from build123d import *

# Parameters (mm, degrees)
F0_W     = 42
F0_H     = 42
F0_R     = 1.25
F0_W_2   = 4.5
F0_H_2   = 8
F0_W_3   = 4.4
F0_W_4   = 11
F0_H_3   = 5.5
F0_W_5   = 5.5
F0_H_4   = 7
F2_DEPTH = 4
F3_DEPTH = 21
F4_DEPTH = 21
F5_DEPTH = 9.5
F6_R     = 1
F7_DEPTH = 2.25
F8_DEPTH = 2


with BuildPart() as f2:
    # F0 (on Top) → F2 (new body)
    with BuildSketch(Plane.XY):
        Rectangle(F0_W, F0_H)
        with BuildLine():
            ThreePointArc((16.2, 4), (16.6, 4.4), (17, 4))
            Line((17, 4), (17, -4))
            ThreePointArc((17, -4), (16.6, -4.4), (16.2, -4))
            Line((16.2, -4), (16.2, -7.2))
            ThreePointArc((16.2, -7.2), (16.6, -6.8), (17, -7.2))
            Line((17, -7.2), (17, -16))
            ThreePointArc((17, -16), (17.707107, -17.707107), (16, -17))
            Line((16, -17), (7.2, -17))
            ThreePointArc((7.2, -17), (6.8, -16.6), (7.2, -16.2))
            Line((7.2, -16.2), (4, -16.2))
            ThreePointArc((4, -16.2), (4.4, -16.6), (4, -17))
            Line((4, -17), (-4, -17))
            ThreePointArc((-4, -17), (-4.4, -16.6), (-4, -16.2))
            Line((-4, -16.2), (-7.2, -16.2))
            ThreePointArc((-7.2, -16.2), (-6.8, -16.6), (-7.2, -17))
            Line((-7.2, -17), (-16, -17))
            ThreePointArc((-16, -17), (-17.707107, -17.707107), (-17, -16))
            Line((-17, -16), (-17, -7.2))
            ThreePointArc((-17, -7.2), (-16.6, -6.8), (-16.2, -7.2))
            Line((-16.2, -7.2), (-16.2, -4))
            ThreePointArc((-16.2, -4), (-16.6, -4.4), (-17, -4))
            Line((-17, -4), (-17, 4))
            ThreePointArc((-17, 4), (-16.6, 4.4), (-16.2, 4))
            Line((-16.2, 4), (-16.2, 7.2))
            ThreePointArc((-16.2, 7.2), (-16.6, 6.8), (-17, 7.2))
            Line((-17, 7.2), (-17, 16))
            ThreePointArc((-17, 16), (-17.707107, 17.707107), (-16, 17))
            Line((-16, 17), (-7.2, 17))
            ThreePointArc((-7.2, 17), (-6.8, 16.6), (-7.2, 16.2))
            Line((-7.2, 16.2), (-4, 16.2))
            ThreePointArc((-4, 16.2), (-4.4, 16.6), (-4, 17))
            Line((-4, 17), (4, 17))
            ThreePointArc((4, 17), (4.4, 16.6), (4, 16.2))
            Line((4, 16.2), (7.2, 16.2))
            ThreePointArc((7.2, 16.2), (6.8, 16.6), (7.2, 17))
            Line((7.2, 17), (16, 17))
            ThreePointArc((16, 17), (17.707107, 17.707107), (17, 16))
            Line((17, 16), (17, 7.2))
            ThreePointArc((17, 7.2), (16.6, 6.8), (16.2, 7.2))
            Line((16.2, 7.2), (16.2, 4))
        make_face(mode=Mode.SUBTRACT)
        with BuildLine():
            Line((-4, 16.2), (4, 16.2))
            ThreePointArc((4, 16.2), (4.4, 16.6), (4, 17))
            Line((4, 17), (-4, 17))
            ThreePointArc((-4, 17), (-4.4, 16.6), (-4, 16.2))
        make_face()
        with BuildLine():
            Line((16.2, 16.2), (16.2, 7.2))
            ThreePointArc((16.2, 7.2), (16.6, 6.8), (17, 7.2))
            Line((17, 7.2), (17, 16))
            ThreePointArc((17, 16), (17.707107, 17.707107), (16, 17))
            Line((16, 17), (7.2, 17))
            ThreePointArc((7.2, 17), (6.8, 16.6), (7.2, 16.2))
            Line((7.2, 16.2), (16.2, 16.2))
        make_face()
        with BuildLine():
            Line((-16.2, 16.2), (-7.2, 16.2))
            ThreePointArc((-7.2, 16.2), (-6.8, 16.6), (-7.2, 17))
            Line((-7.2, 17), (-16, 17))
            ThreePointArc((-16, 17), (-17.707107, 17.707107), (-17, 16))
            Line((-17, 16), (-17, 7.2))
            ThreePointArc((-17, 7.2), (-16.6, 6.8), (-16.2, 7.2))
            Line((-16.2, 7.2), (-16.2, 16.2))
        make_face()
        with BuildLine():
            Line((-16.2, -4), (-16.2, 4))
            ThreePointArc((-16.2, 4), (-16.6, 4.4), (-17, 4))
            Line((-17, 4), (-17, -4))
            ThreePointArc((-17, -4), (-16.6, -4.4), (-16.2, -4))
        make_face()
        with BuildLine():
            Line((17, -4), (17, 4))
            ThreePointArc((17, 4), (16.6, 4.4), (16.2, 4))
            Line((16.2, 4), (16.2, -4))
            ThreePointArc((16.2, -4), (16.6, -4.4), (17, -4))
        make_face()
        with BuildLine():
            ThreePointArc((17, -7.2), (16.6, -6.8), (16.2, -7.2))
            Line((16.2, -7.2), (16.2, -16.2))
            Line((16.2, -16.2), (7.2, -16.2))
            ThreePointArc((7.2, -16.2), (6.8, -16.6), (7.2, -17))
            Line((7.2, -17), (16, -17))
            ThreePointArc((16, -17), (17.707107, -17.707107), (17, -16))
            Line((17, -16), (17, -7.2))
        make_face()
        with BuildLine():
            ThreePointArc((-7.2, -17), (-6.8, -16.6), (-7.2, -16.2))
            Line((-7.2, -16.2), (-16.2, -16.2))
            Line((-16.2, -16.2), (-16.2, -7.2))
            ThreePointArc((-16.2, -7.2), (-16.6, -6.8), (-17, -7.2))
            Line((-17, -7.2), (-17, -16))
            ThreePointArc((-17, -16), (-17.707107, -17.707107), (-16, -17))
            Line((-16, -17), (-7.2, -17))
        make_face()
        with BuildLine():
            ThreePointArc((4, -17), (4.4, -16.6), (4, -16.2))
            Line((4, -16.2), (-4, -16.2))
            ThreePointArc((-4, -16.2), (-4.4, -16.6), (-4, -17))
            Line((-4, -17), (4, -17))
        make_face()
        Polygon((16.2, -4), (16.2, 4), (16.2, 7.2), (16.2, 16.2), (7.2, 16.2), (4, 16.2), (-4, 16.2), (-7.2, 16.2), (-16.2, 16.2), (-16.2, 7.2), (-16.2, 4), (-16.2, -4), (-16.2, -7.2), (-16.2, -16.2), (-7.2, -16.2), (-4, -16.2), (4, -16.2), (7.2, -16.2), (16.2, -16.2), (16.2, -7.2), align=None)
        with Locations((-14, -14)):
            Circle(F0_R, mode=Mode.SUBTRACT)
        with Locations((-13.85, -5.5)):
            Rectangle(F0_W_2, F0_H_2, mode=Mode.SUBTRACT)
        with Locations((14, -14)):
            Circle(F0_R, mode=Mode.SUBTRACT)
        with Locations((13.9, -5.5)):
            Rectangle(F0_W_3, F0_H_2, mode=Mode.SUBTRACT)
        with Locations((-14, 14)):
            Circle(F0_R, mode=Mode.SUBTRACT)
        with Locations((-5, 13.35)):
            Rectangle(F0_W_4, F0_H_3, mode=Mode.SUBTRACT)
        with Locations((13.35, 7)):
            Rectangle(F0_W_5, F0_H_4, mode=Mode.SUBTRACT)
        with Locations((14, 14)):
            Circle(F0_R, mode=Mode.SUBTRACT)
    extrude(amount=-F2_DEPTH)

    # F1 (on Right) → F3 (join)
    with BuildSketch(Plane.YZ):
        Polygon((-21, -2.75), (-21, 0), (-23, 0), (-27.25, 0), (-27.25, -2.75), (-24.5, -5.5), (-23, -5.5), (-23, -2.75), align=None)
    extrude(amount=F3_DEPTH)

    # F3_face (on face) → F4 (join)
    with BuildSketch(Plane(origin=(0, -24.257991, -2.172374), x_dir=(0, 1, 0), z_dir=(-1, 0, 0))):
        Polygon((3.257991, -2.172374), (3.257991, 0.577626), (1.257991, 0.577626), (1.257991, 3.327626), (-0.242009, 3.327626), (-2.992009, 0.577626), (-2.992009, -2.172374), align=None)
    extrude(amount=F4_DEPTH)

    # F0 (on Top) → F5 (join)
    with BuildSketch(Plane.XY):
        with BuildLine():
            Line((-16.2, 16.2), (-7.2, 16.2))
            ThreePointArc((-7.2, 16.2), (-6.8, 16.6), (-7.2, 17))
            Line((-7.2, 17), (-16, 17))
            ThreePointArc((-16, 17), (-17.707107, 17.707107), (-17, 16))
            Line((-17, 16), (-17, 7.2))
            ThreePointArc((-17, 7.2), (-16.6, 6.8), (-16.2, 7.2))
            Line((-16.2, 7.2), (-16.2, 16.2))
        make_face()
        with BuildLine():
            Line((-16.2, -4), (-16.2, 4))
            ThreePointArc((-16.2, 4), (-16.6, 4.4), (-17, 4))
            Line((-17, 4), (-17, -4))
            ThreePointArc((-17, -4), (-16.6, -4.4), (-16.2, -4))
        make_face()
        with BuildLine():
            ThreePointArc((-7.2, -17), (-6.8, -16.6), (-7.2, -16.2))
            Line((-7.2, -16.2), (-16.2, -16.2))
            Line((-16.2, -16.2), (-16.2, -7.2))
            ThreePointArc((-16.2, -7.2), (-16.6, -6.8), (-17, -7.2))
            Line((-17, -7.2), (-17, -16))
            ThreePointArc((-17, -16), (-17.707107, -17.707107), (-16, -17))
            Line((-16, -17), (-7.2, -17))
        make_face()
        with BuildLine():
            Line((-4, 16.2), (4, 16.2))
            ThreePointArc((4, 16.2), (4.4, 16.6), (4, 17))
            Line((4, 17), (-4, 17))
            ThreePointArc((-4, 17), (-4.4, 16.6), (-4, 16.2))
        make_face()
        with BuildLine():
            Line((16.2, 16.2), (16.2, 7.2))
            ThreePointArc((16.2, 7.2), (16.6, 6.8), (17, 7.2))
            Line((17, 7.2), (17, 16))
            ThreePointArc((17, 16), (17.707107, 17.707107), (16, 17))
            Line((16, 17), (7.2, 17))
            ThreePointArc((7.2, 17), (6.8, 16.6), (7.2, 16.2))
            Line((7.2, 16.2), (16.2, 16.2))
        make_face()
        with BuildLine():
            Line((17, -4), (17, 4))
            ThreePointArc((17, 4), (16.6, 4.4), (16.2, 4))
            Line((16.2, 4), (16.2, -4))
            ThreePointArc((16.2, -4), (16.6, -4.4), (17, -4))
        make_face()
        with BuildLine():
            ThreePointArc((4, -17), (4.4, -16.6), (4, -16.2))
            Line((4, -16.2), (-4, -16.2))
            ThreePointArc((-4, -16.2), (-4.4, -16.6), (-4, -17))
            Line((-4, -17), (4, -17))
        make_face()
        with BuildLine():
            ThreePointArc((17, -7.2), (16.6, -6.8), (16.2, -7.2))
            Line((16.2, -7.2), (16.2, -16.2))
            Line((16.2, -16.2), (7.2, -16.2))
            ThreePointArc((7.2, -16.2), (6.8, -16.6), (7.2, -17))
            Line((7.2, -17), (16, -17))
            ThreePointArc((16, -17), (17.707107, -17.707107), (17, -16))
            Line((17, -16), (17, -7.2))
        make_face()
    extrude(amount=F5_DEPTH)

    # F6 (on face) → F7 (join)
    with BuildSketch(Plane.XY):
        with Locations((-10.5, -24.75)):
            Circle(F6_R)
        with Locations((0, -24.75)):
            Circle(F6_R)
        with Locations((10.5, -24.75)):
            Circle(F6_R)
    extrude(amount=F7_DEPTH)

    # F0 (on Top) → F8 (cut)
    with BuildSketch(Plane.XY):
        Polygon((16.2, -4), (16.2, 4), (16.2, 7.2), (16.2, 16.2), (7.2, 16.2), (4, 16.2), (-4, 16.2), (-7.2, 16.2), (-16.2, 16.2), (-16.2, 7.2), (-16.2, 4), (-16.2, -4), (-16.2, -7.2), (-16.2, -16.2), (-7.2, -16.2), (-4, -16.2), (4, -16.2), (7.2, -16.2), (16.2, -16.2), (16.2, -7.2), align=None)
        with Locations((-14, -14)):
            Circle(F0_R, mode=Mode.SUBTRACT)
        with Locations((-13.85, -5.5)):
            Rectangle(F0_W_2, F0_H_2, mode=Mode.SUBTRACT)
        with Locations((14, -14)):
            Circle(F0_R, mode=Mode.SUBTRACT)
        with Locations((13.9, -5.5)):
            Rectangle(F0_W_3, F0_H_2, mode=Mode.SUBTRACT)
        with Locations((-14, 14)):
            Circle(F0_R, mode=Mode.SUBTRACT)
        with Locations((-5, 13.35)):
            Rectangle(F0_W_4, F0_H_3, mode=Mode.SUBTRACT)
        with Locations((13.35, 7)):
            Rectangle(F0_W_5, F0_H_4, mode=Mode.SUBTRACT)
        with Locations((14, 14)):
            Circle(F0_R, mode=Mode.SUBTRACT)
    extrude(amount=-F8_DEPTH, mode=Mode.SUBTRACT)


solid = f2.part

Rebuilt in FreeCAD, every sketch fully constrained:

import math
import FreeCAD as App
import Part
import Sketcher

V = App.Vector
Q = App.Units.Quantity


def add_polygon(sketch, points):
    """Adds a closed chain of lines whose ends are joined by coincident constraints."""
    first, n = sketch.GeometryCount, len(points)
    for a, b in zip(points, points[1:] + points[:1]):
        sketch.addGeometry(Part.LineSegment(App.Vector(*a, 0), App.Vector(*b, 0)), False)
    for i in range(n):
        sketch.addConstraint(Sketcher.Constraint("Coincident", first + i, 2, first + (i + 1) % n, 1))

doc = App.newDocument("Part")
params = doc.addObject("Spreadsheet::Sheet", "Params")
for row, (alias, value) in enumerate([
    ("sketch1_diameter", "2.5 mm"),
    ("sketch1_width", "42 mm"),
    ("sketch1_width2", "11 mm"),
    ("sketch1_height", "8 mm"),
    ("sketch1_height2", "7 mm"),
    ("pad1_length", "4 mm"),
    ("sketch2_width", "2 mm"),
    ("sketch2_width2", "1.5 mm"),
    ("sketch2_width3", "6.25 mm"),
    ("pad2_length", "21 mm"),
    ("sketch3_width", "2 mm"),
    ("sketch3_width2", "1.5 mm"),
    ("sketch3_width3", "6.25 mm"),
    ("pad3_length", "21 mm"),
    ("sketch4_radius", "1 mm"),
    ("sketch4_radius2", "0.4 mm"),
    ("sketch4_width", "9 mm"),
    ("sketch4_width2", "8 mm"),
    ("pad4_length", "9.5 mm"),
    ("sketch5_diameter", "2 mm"),
    ("pad5_length", "2.25 mm"),
    ("sketch6_diameter", "2.5 mm"),
    ("sketch6_width", "11 mm"),
    ("sketch6_height", "8 mm"),
    ("sketch6_height2", "7 mm"),
    ("sketch6_width2", "32.4 mm"),
    ("pocket1_length", "2 mm"),
], start=1):
    params.set(f"A{row}", alias)
    params.set(f"B{row}", "=" + value)
    params.setAlias(f"B{row}", alias)

body = doc.addObject("PartDesign::Body", "Body")

sketch1 = doc.addObject("Sketcher::SketchObject", "Sketch")
body.addObject(sketch1)
sketch1.AttachmentSupport = (doc.XY_Plane, [""])
sketch1.MapMode = "FlatFace"
add_polygon(sketch1, [(-21, 21), (-21, -21), (21, -21), (21, 21)])
sketch1.addGeometry(Part.Circle(V(-14, -14, 0), V(0, 0, 1), 1.2), False)
add_polygon(sketch1, [(-11.6, -9.5), (-16.1, -9.5), (-16.1, -1.5), (-11.6, -1.5)])
sketch1.addGeometry(Part.Circle(V(14, -14, 0), V(0, 0, 1), 1.2), False)
add_polygon(sketch1, [(16.1, -9.5), (11.7, -9.5), (11.7, -1.5), (16.1, -1.5)])
sketch1.addGeometry(Part.Circle(V(-14, 14, 0), V(0, 0, 1), 1.2), False)
add_polygon(sketch1, [(0.5, 10.6), (-10.5, 10.6), (-10.5, 16.1), (0.5, 16.1)])
add_polygon(sketch1, [(16.1, 3.5), (10.6, 3.5), (10.6, 10.5), (16.1, 10.5)])
sketch1.addGeometry(Part.Circle(V(14, 14, 0), V(0, 0, 1), 1.2), False)
sketch1.addConstraint([
    Sketcher.Constraint("Vertical", 0),
    Sketcher.Constraint("Horizontal", 1),
    Sketcher.Constraint("Vertical", 2),
    Sketcher.Constraint("Horizontal", 3),
    Sketcher.Constraint("Horizontal", 5),
    Sketcher.Constraint("Vertical", 6),
    Sketcher.Constraint("Horizontal", 7),
    Sketcher.Constraint("Vertical", 8),
    Sketcher.Constraint("Horizontal", 10),
    Sketcher.Constraint("Vertical", 11),
    Sketcher.Constraint("Horizontal", 12),
    Sketcher.Constraint("Vertical", 13),
    Sketcher.Constraint("Horizontal", 15),
    Sketcher.Constraint("Vertical", 16),
    Sketcher.Constraint("Horizontal", 17),
    Sketcher.Constraint("Vertical", 18),
    Sketcher.Constraint("Horizontal", 19),
    Sketcher.Constraint("Vertical", 20),
    Sketcher.Constraint("Horizontal", 21),
    Sketcher.Constraint("Vertical", 22),
    Sketcher.Constraint("Equal", 4, 9),
    Sketcher.Constraint("Equal", 9, 14),
    Sketcher.Constraint("Equal", 14, 23),
    Sketcher.Constraint("Symmetric", 9, 3, 14, 3, -1, 1),
    Sketcher.Constraint("Symmetric", 4, 3, 23, 3, -1, 1),
    Sketcher.Constraint("Symmetric", 0, 2, 2, 2, -1, 1),
    Sketcher.Constraint("Symmetric", 4, 3, 9, 3, -2),
    Sketcher.Constraint("Symmetric", 6, 2, 12, 2, -2),
    Sketcher.Constraint("Horizontal", 8, 2, 10, 2),
    Sketcher.Constraint("Vertical", 13, 2, 21, 2),
    Sketcher.Constraint("Equal", 3, 0),
    Sketcher.Constraint("Equal", 21, 16),
    Sketcher.Constraint("Diameter", 4, 2.5),
    Sketcher.Constraint("DistanceX", 1, 1, 1, 2, 42.0),
    Sketcher.Constraint("DistanceX", 15, 2, 15, 1, 11.0),
    Sketcher.Constraint("DistanceY", 6, 1, 6, 2, 8.0),
    Sketcher.Constraint("DistanceY", 20, 1, 20, 2, 7.0),
    Sketcher.Constraint("DistanceX", 5, 2, 5, 1, 4.5),
    Sketcher.Constraint("DistanceX", 10, 2, 10, 1, 4.4),
    Sketcher.Constraint("DistanceX", 19, 2, 19, 1, 5.5),
    Sketcher.Constraint("DistanceX", 4, 3, -1, 1, 14.0),
    Sketcher.Constraint("DistanceY", 4, 3, -1, 1, 14.0),
    Sketcher.Constraint("DistanceY", 11, 2, 19, 2, 5.0),
    Sketcher.Constraint("DistanceX", 5, 2, -1, 1, 16.1),
    Sketcher.Constraint("DistanceY", 5, 2, -1, 1, 9.5),
    Sketcher.Constraint("DistanceX", 15, 2, -1, 1, 10.5),
    Sketcher.Constraint("DistanceY", -1, 1, 15, 2, 10.6),
])
sketch1.setExpression("Constraints[52]", "Params.sketch1_diameter")
sketch1.setExpression("Constraints[53]", "Params.sketch1_width")
sketch1.setExpression("Constraints[54]", "Params.sketch1_width2")
sketch1.setExpression("Constraints[55]", "Params.sketch1_height")
sketch1.setExpression("Constraints[56]", "Params.sketch1_height2")
pad1 = doc.addObject("PartDesign::Pad", "Pad")
body.addObject(pad1)
pad1.Profile = sketch1
pad1.setExpression("Length", "Params.pad1_length")
pad1.Reversed = True

sketch2 = doc.addObject("Sketcher::SketchObject", "Sketch001")
body.addObject(sketch2)
sketch2.AttachmentSupport = (doc.YZ_Plane, [""])
sketch2.MapMode = "FlatFace"
add_polygon(sketch2, [(-21, -2.8), (-21, 0), (-27.2, 0), (-27.2, -2.8), (-24.5, -5.5), (-23, -5.5), (-23, -2.8)])
sketch2.addConstraint([
    Sketcher.Constraint("Vertical", 0),
    Sketcher.Constraint("Horizontal", 1),
    Sketcher.Constraint("Vertical", 2),
    Sketcher.Constraint("Horizontal", 4),
    Sketcher.Constraint("Vertical", 5),
    Sketcher.Constraint("Horizontal", 6),
    Sketcher.Constraint("PointOnObject", 0, 2, -1),
    Sketcher.Constraint("Horizontal", 2, 2, 5, 2),
    Sketcher.Constraint("Equal", 2, 5),
    Sketcher.Constraint("DistanceX", 6, 1, 6, 2, 2.0),
    Sketcher.Constraint("Angle", 3, Q("-45 deg")),
    Sketcher.Constraint("DistanceX", 4, 1, 4, 2, 1.5),
    Sketcher.Constraint("DistanceX", 0, 2, -1, 1, 21.0),
    Sketcher.Constraint("DistanceX", 1, 2, 1, 1, 6.25),
])
sketch2.setExpression("Constraints[16]", "Params.sketch2_width")
sketch2.setExpression("Constraints[18]", "Params.sketch2_width2")
sketch2.setExpression("Constraints[20]", "Params.sketch2_width3")
pad2 = doc.addObject("PartDesign::Pad", "Pad001")
body.addObject(pad2)
pad2.Profile = sketch2
pad2.setExpression("Length", "Params.pad2_length")

sketch3 = doc.addObject("Sketcher::SketchObject", "Sketch002")
body.addObject(sketch3)
sketch3.AttachmentSupport = (doc.YZ_Plane, [""])
sketch3.MapMode = "FlatFace"
add_polygon(sketch3, [(-21, 0), (-21, -2.8), (-23, -2.8), (-23, -5.5), (-24.5, -5.5), (-27.2, -2.8), (-27.2, 0)])
sketch3.addConstraint([
    Sketcher.Constraint("Vertical", 0),
    Sketcher.Constraint("Horizontal", 1),
    Sketcher.Constraint("Vertical", 2),
    Sketcher.Constraint("Horizontal", 3),
    Sketcher.Constraint("Vertical", 5),
    Sketcher.Constraint("Horizontal", 6),
    Sketcher.Constraint("PointOnObject", 5, 2, -1),
    Sketcher.Constraint("Horizontal", 1, 2, 4, 2),
    Sketcher.Constraint("Equal", 0, 2),
    Sketcher.Constraint("DistanceX", 1, 2, 1, 1, 2.0),
    Sketcher.Constraint("Angle", 4, Q("135 deg")),
    Sketcher.Constraint("DistanceX", 3, 2, 3, 1, 1.5),
    Sketcher.Constraint("DistanceX", 0, 2, -1, 1, 21.0),
    Sketcher.Constraint("DistanceX", 6, 1, 6, 2, 6.25),
])
sketch3.setExpression("Constraints[16]", "Params.sketch3_width")
sketch3.setExpression("Constraints[18]", "Params.sketch3_width2")
sketch3.setExpression("Constraints[20]", "Params.sketch3_width3")
pad3 = doc.addObject("PartDesign::Pad", "Pad002")
body.addObject(pad3)
pad3.Profile = sketch3
pad3.setExpression("Length", "Params.pad3_length")
pad3.Reversed = True

sketch4 = doc.addObject("Sketcher::SketchObject", "Sketch003")
body.addObject(sketch4)
sketch4.AttachmentSupport = (doc.XY_Plane, [""])
sketch4.MapMode = "FlatFace"
sketch4.addGeometry([
    Part.LineSegment(V(-16.2, 16.2, 0), V(-7.2, 16.2, 0)),
    Part.ArcOfCircle(Part.Circle(V(-7.2, 16.6, 0), V(0, 0, 1), 0.4), math.radians(-90), math.radians(90)),
    Part.LineSegment(V(-7.2, 17, 0), V(-16, 17, 0)),
    Part.ArcOfCircle(Part.Circle(V(-17, 17, 0), V(0, 0, 1), 1), math.radians(0), math.radians(270)),
    Part.LineSegment(V(-17, 16, 0), V(-17, 7.2, 0)),
    Part.ArcOfCircle(Part.Circle(V(-16.6, 7.2, 0), V(0, 0, 1), 0.4), math.radians(180), math.radians(360)),
    Part.LineSegment(V(-16.2, 7.2, 0), V(-16.2, 16.2, 0)),
    Part.LineSegment(V(-16.2, -4, 0), V(-16.2, 4, 0)),
    Part.ArcOfCircle(Part.Circle(V(-16.6, 4, 0), V(0, 0, 1), 0.4), math.radians(0), math.radians(180)),
    Part.LineSegment(V(-17, 4, 0), V(-17, -4, 0)),
    Part.ArcOfCircle(Part.Circle(V(-16.6, -4, 0), V(0, 0, 1), 0.4), math.radians(180), math.radians(360)),
    Part.ArcOfCircle(Part.Circle(V(-7.2, -16.6, 0), V(0, 0, 1), 0.4), math.radians(-90), math.radians(90)),
    Part.LineSegment(V(-7.2, -16.2, 0), V(-16.2, -16.2, 0)),
    Part.LineSegment(V(-16.2, -16.2, 0), V(-16.2, -7.2, 0)),
    Part.ArcOfCircle(Part.Circle(V(-16.6, -7.2, 0), V(0, 0, 1), 0.4), math.radians(0), math.radians(180)),
    Part.LineSegment(V(-17, -7.2, 0), V(-17, -16, 0)),
    Part.ArcOfCircle(Part.Circle(V(-17, -17, 0), V(0, 0, 1), 1), math.radians(90), math.radians(360)),
    Part.LineSegment(V(-16, -17, 0), V(-7.2, -17, 0)),
    Part.LineSegment(V(-4, 16.2, 0), V(4, 16.2, 0)),
    Part.ArcOfCircle(Part.Circle(V(4, 16.6, 0), V(0, 0, 1), 0.4), math.radians(-90), math.radians(90)),
    Part.LineSegment(V(4, 17, 0), V(-4, 17, 0)),
    Part.ArcOfCircle(Part.Circle(V(-4, 16.6, 0), V(0, 0, 1), 0.4), math.radians(90), math.radians(270)),
    Part.LineSegment(V(16.2, 16.2, 0), V(16.2, 7.2, 0)),
    Part.ArcOfCircle(Part.Circle(V(16.6, 7.2, 0), V(0, 0, 1), 0.4), math.radians(180), math.radians(360)),
    Part.LineSegment(V(17, 7.2, 0), V(17, 16, 0)),
    Part.ArcOfCircle(Part.Circle(V(17, 17, 0), V(0, 0, 1), 1), math.radians(-90), math.radians(180)),
    Part.LineSegment(V(16, 17, 0), V(7.2, 17, 0)),
    Part.ArcOfCircle(Part.Circle(V(7.2, 16.6, 0), V(0, 0, 1), 0.4), math.radians(90), math.radians(270)),
    Part.LineSegment(V(7.2, 16.2, 0), V(16.2, 16.2, 0)),
    Part.LineSegment(V(17, -4, 0), V(17, 4, 0)),
    Part.ArcOfCircle(Part.Circle(V(16.6, 4, 0), V(0, 0, 1), 0.4), math.radians(0), math.radians(180)),
    Part.LineSegment(V(16.2, 4, 0), V(16.2, -4, 0)),
    Part.ArcOfCircle(Part.Circle(V(16.6, -4, 0), V(0, 0, 1), 0.4), math.radians(180), math.radians(360)),
    Part.ArcOfCircle(Part.Circle(V(4, -16.6, 0), V(0, 0, 1), 0.4), math.radians(-90), math.radians(90)),
    Part.LineSegment(V(4, -16.2, 0), V(-4, -16.2, 0)),
    Part.ArcOfCircle(Part.Circle(V(-4, -16.6, 0), V(0, 0, 1), 0.4), math.radians(90), math.radians(270)),
    Part.LineSegment(V(-4, -17, 0), V(4, -17, 0)),
    Part.ArcOfCircle(Part.Circle(V(16.6, -7.2, 0), V(0, 0, 1), 0.4), math.radians(0), math.radians(180)),
    Part.LineSegment(V(16.2, -7.2, 0), V(16.2, -16.2, 0)),
    Part.LineSegment(V(16.2, -16.2, 0), V(7.2, -16.2, 0)),
    Part.ArcOfCircle(Part.Circle(V(7.2, -16.6, 0), V(0, 0, 1), 0.4), math.radians(90), math.radians(270)),
    Part.LineSegment(V(7.2, -17, 0), V(16, -17, 0)),
    Part.ArcOfCircle(Part.Circle(V(17, -17, 0), V(0, 0, 1), 1), math.radians(180), math.radians(450)),
    Part.LineSegment(V(17, -16, 0), V(17, -7.2, 0)),
], False)
sketch4.addConstraint([
    Sketcher.Constraint("Tangent", 0, 2, 1, 1),
    Sketcher.Constraint("Tangent", 1, 2, 2, 1),
    Sketcher.Constraint("Coincident", 2, 2, 3, 1),
    Sketcher.Constraint("Coincident", 3, 2, 4, 1),
    Sketcher.Constraint("Tangent", 4, 2, 5, 1),
    Sketcher.Constraint("Tangent", 5, 2, 6, 1),
    Sketcher.Constraint("Coincident", 6, 2, 0, 1),
    Sketcher.Constraint("Tangent", 7, 2, 8, 1),
    Sketcher.Constraint("Tangent", 8, 2, 9, 1),
    Sketcher.Constraint("Tangent", 9, 2, 10, 1),
    Sketcher.Constraint("Tangent", 10, 2, 7, 1),
    Sketcher.Constraint("Tangent", 11, 2, 12, 1),
    Sketcher.Constraint("Coincident", 12, 2, 13, 1),
    Sketcher.Constraint("Tangent", 13, 2, 14, 1),
    Sketcher.Constraint("Tangent", 14, 2, 15, 1),
    Sketcher.Constraint("Coincident", 15, 2, 16, 1),
    Sketcher.Constraint("Coincident", 16, 2, 17, 1),
    Sketcher.Constraint("Tangent", 17, 2, 11, 1),
    Sketcher.Constraint("Tangent", 18, 2, 19, 1),
    Sketcher.Constraint("Tangent", 19, 2, 20, 1),
    Sketcher.Constraint("Tangent", 20, 2, 21, 1),
    Sketcher.Constraint("Tangent", 21, 2, 18, 1),
    Sketcher.Constraint("Tangent", 22, 2, 23, 1),
    Sketcher.Constraint("Tangent", 23, 2, 24, 1),
    Sketcher.Constraint("Coincident", 24, 2, 25, 1),
    Sketcher.Constraint("Coincident", 25, 2, 26, 1),
    Sketcher.Constraint("Tangent", 26, 2, 27, 1),
    Sketcher.Constraint("Tangent", 27, 2, 28, 1),
    Sketcher.Constraint("Coincident", 28, 2, 22, 1),
    Sketcher.Constraint("Tangent", 29, 2, 30, 1),
    Sketcher.Constraint("Tangent", 30, 2, 31, 1),
    Sketcher.Constraint("Tangent", 31, 2, 32, 1),
    Sketcher.Constraint("Tangent", 32, 2, 29, 1),
    Sketcher.Constraint("Tangent", 33, 2, 34, 1),
    Sketcher.Constraint("Tangent", 34, 2, 35, 1),
    Sketcher.Constraint("Tangent", 35, 2, 36, 1),
    Sketcher.Constraint("Tangent", 36, 2, 33, 1),
    Sketcher.Constraint("Tangent", 37, 2, 38, 1),
    Sketcher.Constraint("Coincident", 38, 2, 39, 1),
    Sketcher.Constraint("Tangent", 39, 2, 40, 1),
    Sketcher.Constraint("Tangent", 40, 2, 41, 1),
    Sketcher.Constraint("Coincident", 41, 2, 42, 1),
    Sketcher.Constraint("Coincident", 42, 2, 43, 1),
    Sketcher.Constraint("Tangent", 43, 2, 37, 1),
    Sketcher.Constraint("Horizontal", 0),
    Sketcher.Constraint("Horizontal", 2),
    Sketcher.Constraint("Vertical", 4),
    Sketcher.Constraint("Vertical", 6),
    Sketcher.Constraint("Vertical", 7),
    Sketcher.Constraint("Vertical", 9),
    Sketcher.Constraint("Horizontal", 12),
    Sketcher.Constraint("Vertical", 13),
    Sketcher.Constraint("Vertical", 15),
    Sketcher.Constraint("Horizontal", 17),
    Sketcher.Constraint("Horizontal", 18),
    Sketcher.Constraint("Horizontal", 20),
    Sketcher.Constraint("Vertical", 22),
    Sketcher.Constraint("Vertical", 24),
    Sketcher.Constraint("Horizontal", 26),
    Sketcher.Constraint("Horizontal", 28),
    Sketcher.Constraint("Vertical", 29),
    Sketcher.Constraint("Vertical", 31),
    Sketcher.Constraint("Horizontal", 34),
    Sketcher.Constraint("Horizontal", 36),
    Sketcher.Constraint("Vertical", 38),
    Sketcher.Constraint("Horizontal", 39),
    Sketcher.Constraint("Horizontal", 41),
    Sketcher.Constraint("Vertical", 43),
    Sketcher.Constraint("Equal", 1, 5),
    Sketcher.Constraint("Equal", 5, 8),
    Sketcher.Constraint("Equal", 10, 11),
    Sketcher.Constraint("Equal", 11, 14),
    Sketcher.Constraint("Equal", 3, 16),
    Sketcher.Constraint("Equal", 14, 19),
    Sketcher.Constraint("Equal", 21, 23),
    Sketcher.Constraint("Equal", 16, 25),
    Sketcher.Constraint("Equal", 23, 27),
    Sketcher.Constraint("Equal", 27, 30),
    Sketcher.Constraint("Equal", 32, 33),
    Sketcher.Constraint("Equal", 35, 37),
    Sketcher.Constraint("Equal", 37, 40),
    Sketcher.Constraint("Equal", 25, 42),
    Sketcher.Constraint("Symmetric", 14, 3, 23, 3, -1, 1),
    Sketcher.Constraint("Symmetric", 16, 3, 25, 3, -1, 1),
    Sketcher.Constraint("Symmetric", 11, 3, 27, 3, -1, 1),
    Sketcher.Constraint("Symmetric", 10, 3, 30, 3, -1, 1),
    Sketcher.Constraint("Symmetric", 21, 3, 33, 3, -1, 1),
    Sketcher.Constraint("Symmetric", 5, 3, 37, 3, -1, 1),
    Sketcher.Constraint("Symmetric", 1, 3, 40, 3, -1, 1),
    Sketcher.Constraint("Symmetric", 3, 3, 42, 3, -1, 1),
    Sketcher.Constraint("Symmetric", 5, 3, 23, 3, -2),
    Sketcher.Constraint("Symmetric", 3, 3, 25, 3, -2),
    Sketcher.Constraint("Symmetric", 1, 3, 27, 3, -2),
    Sketcher.Constraint("Horizontal", 1, 3, 19, 3),
    Sketcher.Constraint("Horizontal", 8, 3, 30, 3),
    Sketcher.Constraint("Horizontal", 10, 3, 32, 3),
    Sketcher.Constraint("Horizontal", 25, 3, 1, 2),
    Sketcher.Constraint("Vertical", 5, 3, 8, 3),
    Sketcher.Constraint("Vertical", 19, 3, 33, 3),
    Sketcher.Constraint("Vertical", 21, 3, 35, 3),
    Sketcher.Constraint("Vertical", 16, 3, 3, 2),
    Sketcher.Constraint("Equal", 41, 4),
    Sketcher.Constraint("Equal", 36, 7),
    Sketcher.Constraint("Radius", 3, 1.0),
    Sketcher.Constraint("Radius", 1, 0.4),
    Sketcher.Constraint("DistanceX", 0, 1, 0, 2, 9.0),
    Sketcher.Constraint("DistanceX", 18, 1, 18, 2, 8.0),
    Sketcher.Constraint("DistanceX", 3, 3, -1, 1, 17.0),
    Sketcher.Constraint("DistanceY", -1, 1, 3, 3, 17.0),
])
sketch4.setExpression("Constraints[103]", "Params.sketch4_radius")
sketch4.setExpression("Constraints[104]", "Params.sketch4_radius2")
sketch4.setExpression("Constraints[105]", "Params.sketch4_width")
sketch4.setExpression("Constraints[106]", "Params.sketch4_width2")
pad4 = doc.addObject("PartDesign::Pad", "Pad003")
body.addObject(pad4)
pad4.Profile = sketch4
pad4.setExpression("Length", "Params.pad4_length")

sketch5 = doc.addObject("Sketcher::SketchObject", "Sketch004")
body.addObject(sketch5)
sketch5.AttachmentSupport = (doc.XY_Plane, [""])
sketch5.MapMode = "FlatFace"
sketch5.addGeometry([
    Part.Circle(V(-10.5, -24.8, 0), V(0, 0, 1), 1),
    Part.Circle(V(0, -24.8, 0), V(0, 0, 1), 1),
    Part.Circle(V(10.5, -24.8, 0), V(0, 0, 1), 1),
], False)
sketch5.addConstraint([
    Sketcher.Constraint("Equal", 0, 1),
    Sketcher.Constraint("Equal", 1, 2),
    Sketcher.Constraint("Symmetric", 0, 3, 2, 3, -2),
    Sketcher.Constraint("PointOnObject", 1, 3, -2),
    Sketcher.Constraint("Horizontal", 0, 3, 1, 3),
    Sketcher.Constraint("Diameter", 0, 2.0),
    Sketcher.Constraint("DistanceX", 0, 3, 2, 3, 21.0),
    Sketcher.Constraint("DistanceY", 0, 3, -1, 1, 24.75),
])
sketch5.setExpression("Constraints[5]", "Params.sketch5_diameter")
pad5 = doc.addObject("PartDesign::Pad", "Pad004")
body.addObject(pad5)
pad5.Profile = sketch5
pad5.setExpression("Length", "Params.pad5_length")

sketch6 = doc.addObject("Sketcher::SketchObject", "Sketch005")
body.addObject(sketch6)
sketch6.AttachmentSupport = (doc.XY_Plane, [""])
sketch6.MapMode = "FlatFace"
add_polygon(sketch6, [(16.2, 16.2), (-16.2, 16.2), (-16.2, -16.2), (16.2, -16.2)])
sketch6.addGeometry(Part.Circle(V(-14, -14, 0), V(0, 0, 1), 1.2), False)
add_polygon(sketch6, [(-11.6, -9.5), (-16.1, -9.5), (-16.1, -1.5), (-11.6, -1.5)])
sketch6.addGeometry(Part.Circle(V(14, -14, 0), V(0, 0, 1), 1.2), False)
add_polygon(sketch6, [(16.1, -9.5), (11.7, -9.5), (11.7, -1.5), (16.1, -1.5)])
sketch6.addGeometry(Part.Circle(V(-14, 14, 0), V(0, 0, 1), 1.2), False)
add_polygon(sketch6, [(0.5, 10.6), (-10.5, 10.6), (-10.5, 16.1), (0.5, 16.1)])
add_polygon(sketch6, [(16.1, 3.5), (10.6, 3.5), (10.6, 10.5), (16.1, 10.5)])
sketch6.addGeometry(Part.Circle(V(14, 14, 0), V(0, 0, 1), 1.2), False)
sketch6.addConstraint([
    Sketcher.Constraint("Horizontal", 0),
    Sketcher.Constraint("Vertical", 1),
    Sketcher.Constraint("Horizontal", 2),
    Sketcher.Constraint("Vertical", 3),
    Sketcher.Constraint("Horizontal", 5),
    Sketcher.Constraint("Vertical", 6),
    Sketcher.Constraint("Horizontal", 7),
    Sketcher.Constraint("Vertical", 8),
    Sketcher.Constraint("Horizontal", 10),
    Sketcher.Constraint("Vertical", 11),
    Sketcher.Constraint("Horizontal", 12),
    Sketcher.Constraint("Vertical", 13),
    Sketcher.Constraint("Horizontal", 15),
    Sketcher.Constraint("Vertical", 16),
    Sketcher.Constraint("Horizontal", 17),
    Sketcher.Constraint("Vertical", 18),
    Sketcher.Constraint("Horizontal", 19),
    Sketcher.Constraint("Vertical", 20),
    Sketcher.Constraint("Horizontal", 21),
    Sketcher.Constraint("Vertical", 22),
    Sketcher.Constraint("Equal", 4, 9),
    Sketcher.Constraint("Equal", 9, 14),
    Sketcher.Constraint("Equal", 14, 23),
    Sketcher.Constraint("Symmetric", 9, 3, 14, 3, -1, 1),
    Sketcher.Constraint("Symmetric", 4, 3, 23, 3, -1, 1),
    Sketcher.Constraint("Symmetric", 0, 2, 2, 2, -1, 1),
    Sketcher.Constraint("Symmetric", 4, 3, 9, 3, -2),
    Sketcher.Constraint("Symmetric", 6, 2, 12, 2, -2),
    Sketcher.Constraint("Horizontal", 8, 2, 10, 2),
    Sketcher.Constraint("Vertical", 13, 2, 21, 2),
    Sketcher.Constraint("Equal", 2, 1),
    Sketcher.Constraint("Equal", 21, 16),
    Sketcher.Constraint("Diameter", 4, 2.5),
    Sketcher.Constraint("DistanceX", 15, 2, 15, 1, 11.0),
    Sketcher.Constraint("DistanceY", 6, 1, 6, 2, 8.0),
    Sketcher.Constraint("DistanceY", 20, 1, 20, 2, 7.0),
    Sketcher.Constraint("DistanceX", 0, 2, 0, 1, 32.4),
    Sketcher.Constraint("DistanceX", 5, 2, 5, 1, 4.5),
    Sketcher.Constraint("DistanceX", 10, 2, 10, 1, 4.4),
    Sketcher.Constraint("DistanceX", 19, 2, 19, 1, 5.5),
    Sketcher.Constraint("DistanceX", 4, 3, -1, 1, 14.0),
    Sketcher.Constraint("DistanceY", 4, 3, -1, 1, 14.0),
    Sketcher.Constraint("DistanceY", 11, 2, 19, 2, 5.0),
    Sketcher.Constraint("DistanceX", 5, 2, -1, 1, 16.1),
    Sketcher.Constraint("DistanceY", 5, 2, -1, 1, 9.5),
    Sketcher.Constraint("DistanceX", 15, 2, -1, 1, 10.5),
    Sketcher.Constraint("DistanceY", -1, 1, 15, 2, 10.6),
])
sketch6.setExpression("Constraints[52]", "Params.sketch6_diameter")
sketch6.setExpression("Constraints[53]", "Params.sketch6_width")
sketch6.setExpression("Constraints[54]", "Params.sketch6_height")
sketch6.setExpression("Constraints[55]", "Params.sketch6_height2")
sketch6.setExpression("Constraints[56]", "Params.sketch6_width2")
pocket1 = doc.addObject("PartDesign::Pocket", "Pocket")
body.addObject(pocket1)
pocket1.Profile = sketch6
pocket1.setExpression("Length", "Params.pocket1_length")

doc.recompute()
